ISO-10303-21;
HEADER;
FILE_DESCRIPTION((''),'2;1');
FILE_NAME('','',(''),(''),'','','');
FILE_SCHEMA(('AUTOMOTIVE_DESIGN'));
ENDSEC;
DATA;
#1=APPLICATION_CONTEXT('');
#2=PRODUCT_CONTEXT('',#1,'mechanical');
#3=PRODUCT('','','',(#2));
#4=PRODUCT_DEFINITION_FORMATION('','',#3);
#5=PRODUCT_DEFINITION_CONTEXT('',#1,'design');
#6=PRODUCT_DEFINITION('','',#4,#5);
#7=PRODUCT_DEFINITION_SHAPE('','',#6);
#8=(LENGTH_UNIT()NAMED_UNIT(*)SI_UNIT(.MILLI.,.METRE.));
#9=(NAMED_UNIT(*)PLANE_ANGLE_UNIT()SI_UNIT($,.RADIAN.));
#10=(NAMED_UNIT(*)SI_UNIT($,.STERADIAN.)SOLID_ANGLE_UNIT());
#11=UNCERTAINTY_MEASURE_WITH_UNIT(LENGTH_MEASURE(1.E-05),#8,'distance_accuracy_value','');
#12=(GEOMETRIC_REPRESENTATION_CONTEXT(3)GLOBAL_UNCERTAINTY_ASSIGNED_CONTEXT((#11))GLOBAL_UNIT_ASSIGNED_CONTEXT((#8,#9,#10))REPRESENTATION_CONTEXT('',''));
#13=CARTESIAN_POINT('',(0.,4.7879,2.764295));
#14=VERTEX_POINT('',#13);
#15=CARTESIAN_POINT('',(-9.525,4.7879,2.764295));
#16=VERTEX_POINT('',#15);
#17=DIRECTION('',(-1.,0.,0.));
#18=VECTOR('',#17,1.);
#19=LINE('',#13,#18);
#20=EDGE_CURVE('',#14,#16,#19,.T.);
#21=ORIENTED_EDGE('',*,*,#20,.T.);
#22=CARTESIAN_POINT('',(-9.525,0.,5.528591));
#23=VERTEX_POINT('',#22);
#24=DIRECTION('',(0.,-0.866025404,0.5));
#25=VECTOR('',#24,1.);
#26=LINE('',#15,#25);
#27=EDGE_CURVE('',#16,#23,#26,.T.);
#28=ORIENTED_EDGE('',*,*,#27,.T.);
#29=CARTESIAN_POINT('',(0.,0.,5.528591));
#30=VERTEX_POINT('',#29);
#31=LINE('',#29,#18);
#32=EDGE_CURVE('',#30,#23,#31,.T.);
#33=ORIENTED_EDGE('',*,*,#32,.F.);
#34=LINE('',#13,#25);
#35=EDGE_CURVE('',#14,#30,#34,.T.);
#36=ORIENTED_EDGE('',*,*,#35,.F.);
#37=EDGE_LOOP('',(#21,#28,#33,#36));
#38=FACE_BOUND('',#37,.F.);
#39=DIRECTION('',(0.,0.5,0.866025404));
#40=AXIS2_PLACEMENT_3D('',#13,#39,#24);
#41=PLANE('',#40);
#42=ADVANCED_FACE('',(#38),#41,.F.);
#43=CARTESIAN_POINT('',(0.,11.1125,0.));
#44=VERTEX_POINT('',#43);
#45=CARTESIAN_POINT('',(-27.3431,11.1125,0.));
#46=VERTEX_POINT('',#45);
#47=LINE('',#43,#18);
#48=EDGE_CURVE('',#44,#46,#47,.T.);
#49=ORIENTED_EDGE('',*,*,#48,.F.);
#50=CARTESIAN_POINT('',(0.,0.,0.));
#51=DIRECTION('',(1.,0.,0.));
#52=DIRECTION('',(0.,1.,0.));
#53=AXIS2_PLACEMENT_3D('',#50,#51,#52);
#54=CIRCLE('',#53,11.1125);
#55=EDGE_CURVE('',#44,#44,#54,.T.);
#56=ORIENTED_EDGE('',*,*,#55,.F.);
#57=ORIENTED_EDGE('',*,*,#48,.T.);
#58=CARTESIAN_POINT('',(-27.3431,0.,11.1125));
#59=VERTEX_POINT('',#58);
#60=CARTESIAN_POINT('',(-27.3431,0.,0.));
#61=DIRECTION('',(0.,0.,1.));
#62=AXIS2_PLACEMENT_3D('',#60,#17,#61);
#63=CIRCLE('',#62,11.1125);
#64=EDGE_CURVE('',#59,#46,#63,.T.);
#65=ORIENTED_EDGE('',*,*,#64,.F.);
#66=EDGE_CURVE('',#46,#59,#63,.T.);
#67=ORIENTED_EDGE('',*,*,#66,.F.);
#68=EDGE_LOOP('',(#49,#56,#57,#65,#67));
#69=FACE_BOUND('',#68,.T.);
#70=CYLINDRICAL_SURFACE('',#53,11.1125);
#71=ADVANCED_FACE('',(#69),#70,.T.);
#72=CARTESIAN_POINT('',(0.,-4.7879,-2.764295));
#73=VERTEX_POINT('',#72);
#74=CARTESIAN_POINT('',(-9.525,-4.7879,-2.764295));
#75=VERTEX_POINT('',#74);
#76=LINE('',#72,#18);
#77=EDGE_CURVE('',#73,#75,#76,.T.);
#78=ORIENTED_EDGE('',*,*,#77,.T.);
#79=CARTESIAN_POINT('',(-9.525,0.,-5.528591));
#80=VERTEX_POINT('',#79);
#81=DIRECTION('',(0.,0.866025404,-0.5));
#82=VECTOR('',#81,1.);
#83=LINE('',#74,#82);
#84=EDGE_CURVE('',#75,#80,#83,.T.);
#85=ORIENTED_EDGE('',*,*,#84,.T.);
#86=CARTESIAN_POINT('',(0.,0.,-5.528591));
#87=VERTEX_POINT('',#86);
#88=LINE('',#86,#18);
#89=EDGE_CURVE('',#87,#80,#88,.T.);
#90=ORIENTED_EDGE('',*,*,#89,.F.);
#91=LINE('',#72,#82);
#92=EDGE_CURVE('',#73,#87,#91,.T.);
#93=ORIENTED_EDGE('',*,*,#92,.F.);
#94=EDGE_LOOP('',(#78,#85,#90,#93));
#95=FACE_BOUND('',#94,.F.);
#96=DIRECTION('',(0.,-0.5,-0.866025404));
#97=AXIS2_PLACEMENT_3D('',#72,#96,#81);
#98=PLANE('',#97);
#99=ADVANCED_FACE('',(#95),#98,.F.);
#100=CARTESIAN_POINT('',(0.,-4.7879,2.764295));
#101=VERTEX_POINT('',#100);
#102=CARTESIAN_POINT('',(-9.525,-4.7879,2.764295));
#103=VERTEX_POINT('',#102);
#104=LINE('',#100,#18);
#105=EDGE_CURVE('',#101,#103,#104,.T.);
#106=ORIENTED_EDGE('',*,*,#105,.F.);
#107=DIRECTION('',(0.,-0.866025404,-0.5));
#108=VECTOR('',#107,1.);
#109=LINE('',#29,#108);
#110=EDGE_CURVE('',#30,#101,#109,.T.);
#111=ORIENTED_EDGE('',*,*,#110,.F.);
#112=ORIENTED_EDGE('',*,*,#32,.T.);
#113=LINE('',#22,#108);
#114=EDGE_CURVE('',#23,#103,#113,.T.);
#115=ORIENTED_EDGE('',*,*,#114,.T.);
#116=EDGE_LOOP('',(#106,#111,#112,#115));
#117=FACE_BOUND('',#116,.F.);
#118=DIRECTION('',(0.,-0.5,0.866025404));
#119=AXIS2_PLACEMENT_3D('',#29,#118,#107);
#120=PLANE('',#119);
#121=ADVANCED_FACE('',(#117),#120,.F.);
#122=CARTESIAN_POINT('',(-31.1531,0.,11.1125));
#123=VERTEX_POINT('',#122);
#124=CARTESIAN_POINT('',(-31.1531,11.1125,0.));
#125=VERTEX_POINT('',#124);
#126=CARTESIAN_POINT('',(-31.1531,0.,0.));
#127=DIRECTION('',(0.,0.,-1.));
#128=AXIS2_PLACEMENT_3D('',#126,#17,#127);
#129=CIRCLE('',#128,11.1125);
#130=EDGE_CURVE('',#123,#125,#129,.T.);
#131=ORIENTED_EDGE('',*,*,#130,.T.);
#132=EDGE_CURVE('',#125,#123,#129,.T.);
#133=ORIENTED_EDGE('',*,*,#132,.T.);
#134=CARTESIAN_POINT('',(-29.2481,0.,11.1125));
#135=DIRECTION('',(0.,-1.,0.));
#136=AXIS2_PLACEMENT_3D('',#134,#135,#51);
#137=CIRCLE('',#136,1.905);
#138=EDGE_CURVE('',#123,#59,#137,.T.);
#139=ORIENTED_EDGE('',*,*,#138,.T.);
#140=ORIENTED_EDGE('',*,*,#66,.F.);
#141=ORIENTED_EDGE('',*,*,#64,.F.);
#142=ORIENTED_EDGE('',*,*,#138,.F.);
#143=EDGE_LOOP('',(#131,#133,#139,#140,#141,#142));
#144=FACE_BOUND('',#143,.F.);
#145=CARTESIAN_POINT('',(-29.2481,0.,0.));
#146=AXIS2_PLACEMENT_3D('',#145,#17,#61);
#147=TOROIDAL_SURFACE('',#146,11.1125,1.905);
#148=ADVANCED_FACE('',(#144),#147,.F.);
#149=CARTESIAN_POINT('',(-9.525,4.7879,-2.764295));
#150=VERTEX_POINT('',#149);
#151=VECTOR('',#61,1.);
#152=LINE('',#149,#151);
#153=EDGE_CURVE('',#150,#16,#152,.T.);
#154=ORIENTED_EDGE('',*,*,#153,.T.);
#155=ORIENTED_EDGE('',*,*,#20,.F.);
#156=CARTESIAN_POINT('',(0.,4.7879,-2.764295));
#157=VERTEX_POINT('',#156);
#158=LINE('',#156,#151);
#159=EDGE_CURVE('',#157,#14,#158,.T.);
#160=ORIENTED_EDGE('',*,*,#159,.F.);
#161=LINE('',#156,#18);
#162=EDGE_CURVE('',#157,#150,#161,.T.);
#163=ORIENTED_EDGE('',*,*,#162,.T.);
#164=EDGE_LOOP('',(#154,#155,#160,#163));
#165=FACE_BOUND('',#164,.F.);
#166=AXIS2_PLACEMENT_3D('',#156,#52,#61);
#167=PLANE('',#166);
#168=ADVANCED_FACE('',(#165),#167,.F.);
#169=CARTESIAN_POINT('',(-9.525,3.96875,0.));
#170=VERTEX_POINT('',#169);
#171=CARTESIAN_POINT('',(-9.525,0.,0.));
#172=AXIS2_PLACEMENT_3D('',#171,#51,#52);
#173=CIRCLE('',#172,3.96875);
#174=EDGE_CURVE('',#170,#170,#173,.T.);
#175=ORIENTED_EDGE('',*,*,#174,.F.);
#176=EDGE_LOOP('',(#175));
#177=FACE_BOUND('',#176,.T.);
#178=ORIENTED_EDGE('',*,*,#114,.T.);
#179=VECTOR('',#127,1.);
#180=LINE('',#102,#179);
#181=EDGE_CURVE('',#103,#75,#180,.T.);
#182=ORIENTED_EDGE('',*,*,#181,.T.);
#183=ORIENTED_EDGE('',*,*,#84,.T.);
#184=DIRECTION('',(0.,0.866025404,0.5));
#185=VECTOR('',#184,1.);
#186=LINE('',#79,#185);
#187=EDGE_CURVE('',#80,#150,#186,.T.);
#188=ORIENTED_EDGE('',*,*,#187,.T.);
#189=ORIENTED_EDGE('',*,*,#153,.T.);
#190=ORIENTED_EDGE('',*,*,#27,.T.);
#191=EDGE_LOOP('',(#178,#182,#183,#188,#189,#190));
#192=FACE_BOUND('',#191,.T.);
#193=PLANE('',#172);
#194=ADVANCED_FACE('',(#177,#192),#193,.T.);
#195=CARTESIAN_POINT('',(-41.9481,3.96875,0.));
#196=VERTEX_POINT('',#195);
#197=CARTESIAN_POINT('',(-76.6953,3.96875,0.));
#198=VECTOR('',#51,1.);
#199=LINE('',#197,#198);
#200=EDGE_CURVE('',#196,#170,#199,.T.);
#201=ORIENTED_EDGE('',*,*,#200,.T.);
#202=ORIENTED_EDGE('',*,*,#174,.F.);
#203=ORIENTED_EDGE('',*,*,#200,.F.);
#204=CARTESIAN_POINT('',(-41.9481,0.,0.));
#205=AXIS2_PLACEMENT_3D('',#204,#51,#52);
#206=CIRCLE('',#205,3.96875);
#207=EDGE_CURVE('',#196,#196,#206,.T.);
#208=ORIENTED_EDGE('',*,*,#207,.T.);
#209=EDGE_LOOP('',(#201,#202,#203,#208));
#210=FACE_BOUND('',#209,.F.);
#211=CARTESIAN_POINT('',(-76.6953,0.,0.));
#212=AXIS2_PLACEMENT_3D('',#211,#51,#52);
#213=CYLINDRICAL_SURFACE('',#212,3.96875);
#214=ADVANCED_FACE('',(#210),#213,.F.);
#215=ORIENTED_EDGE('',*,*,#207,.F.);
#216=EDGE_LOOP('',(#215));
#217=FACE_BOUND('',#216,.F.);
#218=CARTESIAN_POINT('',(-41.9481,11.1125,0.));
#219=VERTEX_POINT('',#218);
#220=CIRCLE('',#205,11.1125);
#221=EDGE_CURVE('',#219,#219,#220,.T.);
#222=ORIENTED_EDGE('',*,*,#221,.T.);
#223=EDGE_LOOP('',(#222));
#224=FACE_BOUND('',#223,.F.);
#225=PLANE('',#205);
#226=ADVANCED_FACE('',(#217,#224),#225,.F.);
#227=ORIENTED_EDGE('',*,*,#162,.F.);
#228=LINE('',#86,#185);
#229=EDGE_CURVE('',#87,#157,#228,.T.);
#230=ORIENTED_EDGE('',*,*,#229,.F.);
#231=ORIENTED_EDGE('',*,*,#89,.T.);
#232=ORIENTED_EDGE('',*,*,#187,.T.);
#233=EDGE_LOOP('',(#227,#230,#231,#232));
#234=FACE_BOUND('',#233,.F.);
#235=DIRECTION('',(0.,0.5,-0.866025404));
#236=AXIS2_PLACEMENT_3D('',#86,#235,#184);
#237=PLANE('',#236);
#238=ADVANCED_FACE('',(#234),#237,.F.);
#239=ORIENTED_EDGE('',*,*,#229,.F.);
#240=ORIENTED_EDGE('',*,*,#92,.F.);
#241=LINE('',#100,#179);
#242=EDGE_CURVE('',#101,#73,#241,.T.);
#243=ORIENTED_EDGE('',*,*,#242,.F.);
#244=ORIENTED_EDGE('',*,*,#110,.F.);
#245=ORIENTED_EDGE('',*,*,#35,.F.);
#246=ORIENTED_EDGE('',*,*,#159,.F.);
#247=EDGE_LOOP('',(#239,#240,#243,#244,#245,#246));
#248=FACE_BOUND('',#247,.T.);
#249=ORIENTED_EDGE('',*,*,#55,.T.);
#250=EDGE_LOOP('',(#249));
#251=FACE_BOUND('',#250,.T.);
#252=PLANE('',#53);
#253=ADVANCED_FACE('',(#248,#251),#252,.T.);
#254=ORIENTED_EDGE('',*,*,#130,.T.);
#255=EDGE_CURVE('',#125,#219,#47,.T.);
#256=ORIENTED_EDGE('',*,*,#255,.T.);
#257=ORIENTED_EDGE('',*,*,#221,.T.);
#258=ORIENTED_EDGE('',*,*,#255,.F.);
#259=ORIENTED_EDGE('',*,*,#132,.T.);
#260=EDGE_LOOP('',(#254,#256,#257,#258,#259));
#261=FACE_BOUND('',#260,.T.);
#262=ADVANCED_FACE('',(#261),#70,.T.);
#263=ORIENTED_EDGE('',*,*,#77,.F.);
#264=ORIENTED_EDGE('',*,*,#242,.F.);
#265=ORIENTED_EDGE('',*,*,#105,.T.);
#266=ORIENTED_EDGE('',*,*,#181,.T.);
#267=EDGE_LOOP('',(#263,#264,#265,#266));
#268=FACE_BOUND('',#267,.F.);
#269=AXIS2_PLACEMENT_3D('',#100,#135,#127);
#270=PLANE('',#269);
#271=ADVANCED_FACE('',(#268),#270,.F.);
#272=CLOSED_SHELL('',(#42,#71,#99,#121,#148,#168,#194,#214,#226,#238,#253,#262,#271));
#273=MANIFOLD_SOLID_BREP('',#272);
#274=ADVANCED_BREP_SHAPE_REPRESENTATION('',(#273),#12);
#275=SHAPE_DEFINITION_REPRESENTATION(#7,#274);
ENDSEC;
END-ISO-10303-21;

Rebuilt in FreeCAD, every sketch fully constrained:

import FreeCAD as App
import Part
import Sketcher

V = App.Vector
Q = App.Units.Quantity

doc = App.newDocument("Part")
params = doc.addObject("Spreadsheet::Sheet", "Params")
for row, (alias, value) in enumerate([
    ("sketch1_diameter", "0.875 in"),
    ("pad1_length", "1.6515 in"),
    ("pocket1_length", "0.375 in"),
    ("sketch3_diameter", "0.3125 in"),
    ("hole_diameter", "0.3125 in"),
    ("hole_depth", "1.368 in"),
    ("sketch4_diameter", "0.15 in"),
    ("groove_angle", "360 deg"),
], start=1):
    params.set(f"A{row}", alias)
    params.set(f"B{row}", "=" + value)
    params.setAlias(f"B{row}", alias)

body = doc.addObject("PartDesign::Body", "Body")

sketch1 = doc.addObject("Sketcher::SketchObject", "Sketch")
body.addObject(sketch1)
sketch1.AttachmentSupport = (doc.YZ_Plane, [""])
sketch1.MapMode = "FlatFace"
sketch1.addGeometry(Part.Circle(V(0, 0, 0), V(0, 0, 1), 11), False)
sketch1.addConstraint([
    Sketcher.Constraint("Coincident", 0, 3, -1, 1),
    Sketcher.Constraint("Diameter", 0, Q("0.875 in")),
])
sketch1.setExpression("Constraints[1]", "Params.sketch1_diameter")
pad1 = doc.addObject("PartDesign::Pad", "Pad")
body.addObject(pad1)
pad1.Profile = sketch1
pad1.setExpression("Length", "Params.pad1_length")
pad1.Reversed = True

sketch2 = doc.addObject("Sketcher::SketchObject", "Sketch001")
body.addObject(sketch2)
sketch2.AttachmentSupport = (doc.YZ_Plane, [""])
sketch2.MapMode = "FlatFace"
sketch2.addGeometry([
    Part.LineSegment(V(5, -3, 0), V(5, 3, 0)),
    Part.LineSegment(V(5, 3, 0), V(0, 6, 0)),
    Part.LineSegment(V(0, 6, 0), V(-5, 3, 0)),
    Part.LineSegment(V(-5, 3, 0), V(-5, -3, 0)),
    Part.LineSegment(V(-5, -3, 0), V(0, -6, 0)),
    Part.LineSegment(V(0, -6, 0), V(5, -3, 0)),
], False)
sketch2.addConstraint([
    Sketcher.Constraint("Coincident", 0, 2, 1, 1),
    Sketcher.Constraint("Coincident", 1, 2, 2, 1),
    Sketcher.Constraint("Coincident", 2, 2, 3, 1),
    Sketcher.Constraint("Coincident", 3, 2, 4, 1),
    Sketcher.Constraint("Coincident", 4, 2, 5, 1),
    Sketcher.Constraint("Coincident", 5, 2, 0, 1),
    Sketcher.Constraint("Vertical", 0),
    Sketcher.Constraint("Vertical", 3),
    Sketcher.Constraint("Symmetric", 0, 2, 3, 2, -1, 1),
    Sketcher.Constraint("Symmetric", 1, 2, 4, 2, -1, 1),
    Sketcher.Constraint("PointOnObject", 1, 2, -2),
    Sketcher.Constraint("Parallel", 2, 5),
    Sketcher.Constraint("Horizontal", 0, 2, 2, 2),
    Sketcher.Constraint("Angle", 1, Q("150 deg")),
    Sketcher.Constraint("DistanceX", 2, 2, 0, 2, Q("0.377 in")),
    Sketcher.Constraint("DistanceY", 0, 1, 0, 2, 5.528591),
])
pocket1 = doc.addObject("PartDesign::Pocket", "Pocket")
body.addObject(pocket1)
pocket1.Profile = sketch2
pocket1.setExpression("Length", "Params.pocket1_length")

sketch3 = doc.addObject("Sketcher::SketchObject", "Sketch002")
body.addObject(sketch3)
sketch3.AttachmentSupport = (doc.YZ_Plane, [""])
sketch3.MapMode = "FlatFace"
sketch3.AttachmentOffset = App.Placement(V(0, 0, -1.6515 * 25.4), App.Rotation())
sketch3.addGeometry(Part.Circle(V(0, 0, 0), V(0, 0, 1), 4), False)
sketch3.addConstraint([
    Sketcher.Constraint("Coincident", 0, 3, -1, 1),
    Sketcher.Constraint("Diameter", 0, Q("0.3125 in")),
])
sketch3.setExpression("Constraints[1]", "Params.sketch3_diameter")
doc.recompute()
hole = doc.addObject("PartDesign::Hole", "Hole")
body.addObject(hole)
hole.Profile = sketch3
hole.ThreadType = "None"
hole.setExpression("Diameter", "Params.hole_diameter")
hole.DepthType = "Dimension"
hole.setExpression("Depth", "Params.hole_depth")
hole.DrillPoint = "Angled"
hole.DrillPointAngle = 118
hole.Reversed = True

sketch4 = doc.addObject("Sketcher::SketchObject", "Sketch003")
body.addObject(sketch4)
sketch4.AttachmentSupport = (doc.XZ_Plane, [""])
sketch4.MapMode = "FlatFace"
sketch4.addGeometry(Part.Circle(V(-29.2, 11.1, 0), V(0, 0, 1), 1.9), False)
sketch4.addConstraint([
    Sketcher.Constraint("Diameter", 0, Q("0.15 in")),
    Sketcher.Constraint("DistanceY", -1, 1, 0, 3, Q("0.4375 in")),
    Sketcher.Constraint("DistanceX", 0, 3, -1, 1, Q("1.1515 in")),
])
sketch4.setExpression("Constraints[0]", "Params.sketch4_diameter")
groove = doc.addObject("PartDesign::Groove", "Groove")
body.addObject(groove)
groove.Profile = sketch4
groove.ReferenceAxis = (sketch4, ["H_Axis"])
groove.setExpression("Angle", "Params.groove_angle")

doc.recompute()
